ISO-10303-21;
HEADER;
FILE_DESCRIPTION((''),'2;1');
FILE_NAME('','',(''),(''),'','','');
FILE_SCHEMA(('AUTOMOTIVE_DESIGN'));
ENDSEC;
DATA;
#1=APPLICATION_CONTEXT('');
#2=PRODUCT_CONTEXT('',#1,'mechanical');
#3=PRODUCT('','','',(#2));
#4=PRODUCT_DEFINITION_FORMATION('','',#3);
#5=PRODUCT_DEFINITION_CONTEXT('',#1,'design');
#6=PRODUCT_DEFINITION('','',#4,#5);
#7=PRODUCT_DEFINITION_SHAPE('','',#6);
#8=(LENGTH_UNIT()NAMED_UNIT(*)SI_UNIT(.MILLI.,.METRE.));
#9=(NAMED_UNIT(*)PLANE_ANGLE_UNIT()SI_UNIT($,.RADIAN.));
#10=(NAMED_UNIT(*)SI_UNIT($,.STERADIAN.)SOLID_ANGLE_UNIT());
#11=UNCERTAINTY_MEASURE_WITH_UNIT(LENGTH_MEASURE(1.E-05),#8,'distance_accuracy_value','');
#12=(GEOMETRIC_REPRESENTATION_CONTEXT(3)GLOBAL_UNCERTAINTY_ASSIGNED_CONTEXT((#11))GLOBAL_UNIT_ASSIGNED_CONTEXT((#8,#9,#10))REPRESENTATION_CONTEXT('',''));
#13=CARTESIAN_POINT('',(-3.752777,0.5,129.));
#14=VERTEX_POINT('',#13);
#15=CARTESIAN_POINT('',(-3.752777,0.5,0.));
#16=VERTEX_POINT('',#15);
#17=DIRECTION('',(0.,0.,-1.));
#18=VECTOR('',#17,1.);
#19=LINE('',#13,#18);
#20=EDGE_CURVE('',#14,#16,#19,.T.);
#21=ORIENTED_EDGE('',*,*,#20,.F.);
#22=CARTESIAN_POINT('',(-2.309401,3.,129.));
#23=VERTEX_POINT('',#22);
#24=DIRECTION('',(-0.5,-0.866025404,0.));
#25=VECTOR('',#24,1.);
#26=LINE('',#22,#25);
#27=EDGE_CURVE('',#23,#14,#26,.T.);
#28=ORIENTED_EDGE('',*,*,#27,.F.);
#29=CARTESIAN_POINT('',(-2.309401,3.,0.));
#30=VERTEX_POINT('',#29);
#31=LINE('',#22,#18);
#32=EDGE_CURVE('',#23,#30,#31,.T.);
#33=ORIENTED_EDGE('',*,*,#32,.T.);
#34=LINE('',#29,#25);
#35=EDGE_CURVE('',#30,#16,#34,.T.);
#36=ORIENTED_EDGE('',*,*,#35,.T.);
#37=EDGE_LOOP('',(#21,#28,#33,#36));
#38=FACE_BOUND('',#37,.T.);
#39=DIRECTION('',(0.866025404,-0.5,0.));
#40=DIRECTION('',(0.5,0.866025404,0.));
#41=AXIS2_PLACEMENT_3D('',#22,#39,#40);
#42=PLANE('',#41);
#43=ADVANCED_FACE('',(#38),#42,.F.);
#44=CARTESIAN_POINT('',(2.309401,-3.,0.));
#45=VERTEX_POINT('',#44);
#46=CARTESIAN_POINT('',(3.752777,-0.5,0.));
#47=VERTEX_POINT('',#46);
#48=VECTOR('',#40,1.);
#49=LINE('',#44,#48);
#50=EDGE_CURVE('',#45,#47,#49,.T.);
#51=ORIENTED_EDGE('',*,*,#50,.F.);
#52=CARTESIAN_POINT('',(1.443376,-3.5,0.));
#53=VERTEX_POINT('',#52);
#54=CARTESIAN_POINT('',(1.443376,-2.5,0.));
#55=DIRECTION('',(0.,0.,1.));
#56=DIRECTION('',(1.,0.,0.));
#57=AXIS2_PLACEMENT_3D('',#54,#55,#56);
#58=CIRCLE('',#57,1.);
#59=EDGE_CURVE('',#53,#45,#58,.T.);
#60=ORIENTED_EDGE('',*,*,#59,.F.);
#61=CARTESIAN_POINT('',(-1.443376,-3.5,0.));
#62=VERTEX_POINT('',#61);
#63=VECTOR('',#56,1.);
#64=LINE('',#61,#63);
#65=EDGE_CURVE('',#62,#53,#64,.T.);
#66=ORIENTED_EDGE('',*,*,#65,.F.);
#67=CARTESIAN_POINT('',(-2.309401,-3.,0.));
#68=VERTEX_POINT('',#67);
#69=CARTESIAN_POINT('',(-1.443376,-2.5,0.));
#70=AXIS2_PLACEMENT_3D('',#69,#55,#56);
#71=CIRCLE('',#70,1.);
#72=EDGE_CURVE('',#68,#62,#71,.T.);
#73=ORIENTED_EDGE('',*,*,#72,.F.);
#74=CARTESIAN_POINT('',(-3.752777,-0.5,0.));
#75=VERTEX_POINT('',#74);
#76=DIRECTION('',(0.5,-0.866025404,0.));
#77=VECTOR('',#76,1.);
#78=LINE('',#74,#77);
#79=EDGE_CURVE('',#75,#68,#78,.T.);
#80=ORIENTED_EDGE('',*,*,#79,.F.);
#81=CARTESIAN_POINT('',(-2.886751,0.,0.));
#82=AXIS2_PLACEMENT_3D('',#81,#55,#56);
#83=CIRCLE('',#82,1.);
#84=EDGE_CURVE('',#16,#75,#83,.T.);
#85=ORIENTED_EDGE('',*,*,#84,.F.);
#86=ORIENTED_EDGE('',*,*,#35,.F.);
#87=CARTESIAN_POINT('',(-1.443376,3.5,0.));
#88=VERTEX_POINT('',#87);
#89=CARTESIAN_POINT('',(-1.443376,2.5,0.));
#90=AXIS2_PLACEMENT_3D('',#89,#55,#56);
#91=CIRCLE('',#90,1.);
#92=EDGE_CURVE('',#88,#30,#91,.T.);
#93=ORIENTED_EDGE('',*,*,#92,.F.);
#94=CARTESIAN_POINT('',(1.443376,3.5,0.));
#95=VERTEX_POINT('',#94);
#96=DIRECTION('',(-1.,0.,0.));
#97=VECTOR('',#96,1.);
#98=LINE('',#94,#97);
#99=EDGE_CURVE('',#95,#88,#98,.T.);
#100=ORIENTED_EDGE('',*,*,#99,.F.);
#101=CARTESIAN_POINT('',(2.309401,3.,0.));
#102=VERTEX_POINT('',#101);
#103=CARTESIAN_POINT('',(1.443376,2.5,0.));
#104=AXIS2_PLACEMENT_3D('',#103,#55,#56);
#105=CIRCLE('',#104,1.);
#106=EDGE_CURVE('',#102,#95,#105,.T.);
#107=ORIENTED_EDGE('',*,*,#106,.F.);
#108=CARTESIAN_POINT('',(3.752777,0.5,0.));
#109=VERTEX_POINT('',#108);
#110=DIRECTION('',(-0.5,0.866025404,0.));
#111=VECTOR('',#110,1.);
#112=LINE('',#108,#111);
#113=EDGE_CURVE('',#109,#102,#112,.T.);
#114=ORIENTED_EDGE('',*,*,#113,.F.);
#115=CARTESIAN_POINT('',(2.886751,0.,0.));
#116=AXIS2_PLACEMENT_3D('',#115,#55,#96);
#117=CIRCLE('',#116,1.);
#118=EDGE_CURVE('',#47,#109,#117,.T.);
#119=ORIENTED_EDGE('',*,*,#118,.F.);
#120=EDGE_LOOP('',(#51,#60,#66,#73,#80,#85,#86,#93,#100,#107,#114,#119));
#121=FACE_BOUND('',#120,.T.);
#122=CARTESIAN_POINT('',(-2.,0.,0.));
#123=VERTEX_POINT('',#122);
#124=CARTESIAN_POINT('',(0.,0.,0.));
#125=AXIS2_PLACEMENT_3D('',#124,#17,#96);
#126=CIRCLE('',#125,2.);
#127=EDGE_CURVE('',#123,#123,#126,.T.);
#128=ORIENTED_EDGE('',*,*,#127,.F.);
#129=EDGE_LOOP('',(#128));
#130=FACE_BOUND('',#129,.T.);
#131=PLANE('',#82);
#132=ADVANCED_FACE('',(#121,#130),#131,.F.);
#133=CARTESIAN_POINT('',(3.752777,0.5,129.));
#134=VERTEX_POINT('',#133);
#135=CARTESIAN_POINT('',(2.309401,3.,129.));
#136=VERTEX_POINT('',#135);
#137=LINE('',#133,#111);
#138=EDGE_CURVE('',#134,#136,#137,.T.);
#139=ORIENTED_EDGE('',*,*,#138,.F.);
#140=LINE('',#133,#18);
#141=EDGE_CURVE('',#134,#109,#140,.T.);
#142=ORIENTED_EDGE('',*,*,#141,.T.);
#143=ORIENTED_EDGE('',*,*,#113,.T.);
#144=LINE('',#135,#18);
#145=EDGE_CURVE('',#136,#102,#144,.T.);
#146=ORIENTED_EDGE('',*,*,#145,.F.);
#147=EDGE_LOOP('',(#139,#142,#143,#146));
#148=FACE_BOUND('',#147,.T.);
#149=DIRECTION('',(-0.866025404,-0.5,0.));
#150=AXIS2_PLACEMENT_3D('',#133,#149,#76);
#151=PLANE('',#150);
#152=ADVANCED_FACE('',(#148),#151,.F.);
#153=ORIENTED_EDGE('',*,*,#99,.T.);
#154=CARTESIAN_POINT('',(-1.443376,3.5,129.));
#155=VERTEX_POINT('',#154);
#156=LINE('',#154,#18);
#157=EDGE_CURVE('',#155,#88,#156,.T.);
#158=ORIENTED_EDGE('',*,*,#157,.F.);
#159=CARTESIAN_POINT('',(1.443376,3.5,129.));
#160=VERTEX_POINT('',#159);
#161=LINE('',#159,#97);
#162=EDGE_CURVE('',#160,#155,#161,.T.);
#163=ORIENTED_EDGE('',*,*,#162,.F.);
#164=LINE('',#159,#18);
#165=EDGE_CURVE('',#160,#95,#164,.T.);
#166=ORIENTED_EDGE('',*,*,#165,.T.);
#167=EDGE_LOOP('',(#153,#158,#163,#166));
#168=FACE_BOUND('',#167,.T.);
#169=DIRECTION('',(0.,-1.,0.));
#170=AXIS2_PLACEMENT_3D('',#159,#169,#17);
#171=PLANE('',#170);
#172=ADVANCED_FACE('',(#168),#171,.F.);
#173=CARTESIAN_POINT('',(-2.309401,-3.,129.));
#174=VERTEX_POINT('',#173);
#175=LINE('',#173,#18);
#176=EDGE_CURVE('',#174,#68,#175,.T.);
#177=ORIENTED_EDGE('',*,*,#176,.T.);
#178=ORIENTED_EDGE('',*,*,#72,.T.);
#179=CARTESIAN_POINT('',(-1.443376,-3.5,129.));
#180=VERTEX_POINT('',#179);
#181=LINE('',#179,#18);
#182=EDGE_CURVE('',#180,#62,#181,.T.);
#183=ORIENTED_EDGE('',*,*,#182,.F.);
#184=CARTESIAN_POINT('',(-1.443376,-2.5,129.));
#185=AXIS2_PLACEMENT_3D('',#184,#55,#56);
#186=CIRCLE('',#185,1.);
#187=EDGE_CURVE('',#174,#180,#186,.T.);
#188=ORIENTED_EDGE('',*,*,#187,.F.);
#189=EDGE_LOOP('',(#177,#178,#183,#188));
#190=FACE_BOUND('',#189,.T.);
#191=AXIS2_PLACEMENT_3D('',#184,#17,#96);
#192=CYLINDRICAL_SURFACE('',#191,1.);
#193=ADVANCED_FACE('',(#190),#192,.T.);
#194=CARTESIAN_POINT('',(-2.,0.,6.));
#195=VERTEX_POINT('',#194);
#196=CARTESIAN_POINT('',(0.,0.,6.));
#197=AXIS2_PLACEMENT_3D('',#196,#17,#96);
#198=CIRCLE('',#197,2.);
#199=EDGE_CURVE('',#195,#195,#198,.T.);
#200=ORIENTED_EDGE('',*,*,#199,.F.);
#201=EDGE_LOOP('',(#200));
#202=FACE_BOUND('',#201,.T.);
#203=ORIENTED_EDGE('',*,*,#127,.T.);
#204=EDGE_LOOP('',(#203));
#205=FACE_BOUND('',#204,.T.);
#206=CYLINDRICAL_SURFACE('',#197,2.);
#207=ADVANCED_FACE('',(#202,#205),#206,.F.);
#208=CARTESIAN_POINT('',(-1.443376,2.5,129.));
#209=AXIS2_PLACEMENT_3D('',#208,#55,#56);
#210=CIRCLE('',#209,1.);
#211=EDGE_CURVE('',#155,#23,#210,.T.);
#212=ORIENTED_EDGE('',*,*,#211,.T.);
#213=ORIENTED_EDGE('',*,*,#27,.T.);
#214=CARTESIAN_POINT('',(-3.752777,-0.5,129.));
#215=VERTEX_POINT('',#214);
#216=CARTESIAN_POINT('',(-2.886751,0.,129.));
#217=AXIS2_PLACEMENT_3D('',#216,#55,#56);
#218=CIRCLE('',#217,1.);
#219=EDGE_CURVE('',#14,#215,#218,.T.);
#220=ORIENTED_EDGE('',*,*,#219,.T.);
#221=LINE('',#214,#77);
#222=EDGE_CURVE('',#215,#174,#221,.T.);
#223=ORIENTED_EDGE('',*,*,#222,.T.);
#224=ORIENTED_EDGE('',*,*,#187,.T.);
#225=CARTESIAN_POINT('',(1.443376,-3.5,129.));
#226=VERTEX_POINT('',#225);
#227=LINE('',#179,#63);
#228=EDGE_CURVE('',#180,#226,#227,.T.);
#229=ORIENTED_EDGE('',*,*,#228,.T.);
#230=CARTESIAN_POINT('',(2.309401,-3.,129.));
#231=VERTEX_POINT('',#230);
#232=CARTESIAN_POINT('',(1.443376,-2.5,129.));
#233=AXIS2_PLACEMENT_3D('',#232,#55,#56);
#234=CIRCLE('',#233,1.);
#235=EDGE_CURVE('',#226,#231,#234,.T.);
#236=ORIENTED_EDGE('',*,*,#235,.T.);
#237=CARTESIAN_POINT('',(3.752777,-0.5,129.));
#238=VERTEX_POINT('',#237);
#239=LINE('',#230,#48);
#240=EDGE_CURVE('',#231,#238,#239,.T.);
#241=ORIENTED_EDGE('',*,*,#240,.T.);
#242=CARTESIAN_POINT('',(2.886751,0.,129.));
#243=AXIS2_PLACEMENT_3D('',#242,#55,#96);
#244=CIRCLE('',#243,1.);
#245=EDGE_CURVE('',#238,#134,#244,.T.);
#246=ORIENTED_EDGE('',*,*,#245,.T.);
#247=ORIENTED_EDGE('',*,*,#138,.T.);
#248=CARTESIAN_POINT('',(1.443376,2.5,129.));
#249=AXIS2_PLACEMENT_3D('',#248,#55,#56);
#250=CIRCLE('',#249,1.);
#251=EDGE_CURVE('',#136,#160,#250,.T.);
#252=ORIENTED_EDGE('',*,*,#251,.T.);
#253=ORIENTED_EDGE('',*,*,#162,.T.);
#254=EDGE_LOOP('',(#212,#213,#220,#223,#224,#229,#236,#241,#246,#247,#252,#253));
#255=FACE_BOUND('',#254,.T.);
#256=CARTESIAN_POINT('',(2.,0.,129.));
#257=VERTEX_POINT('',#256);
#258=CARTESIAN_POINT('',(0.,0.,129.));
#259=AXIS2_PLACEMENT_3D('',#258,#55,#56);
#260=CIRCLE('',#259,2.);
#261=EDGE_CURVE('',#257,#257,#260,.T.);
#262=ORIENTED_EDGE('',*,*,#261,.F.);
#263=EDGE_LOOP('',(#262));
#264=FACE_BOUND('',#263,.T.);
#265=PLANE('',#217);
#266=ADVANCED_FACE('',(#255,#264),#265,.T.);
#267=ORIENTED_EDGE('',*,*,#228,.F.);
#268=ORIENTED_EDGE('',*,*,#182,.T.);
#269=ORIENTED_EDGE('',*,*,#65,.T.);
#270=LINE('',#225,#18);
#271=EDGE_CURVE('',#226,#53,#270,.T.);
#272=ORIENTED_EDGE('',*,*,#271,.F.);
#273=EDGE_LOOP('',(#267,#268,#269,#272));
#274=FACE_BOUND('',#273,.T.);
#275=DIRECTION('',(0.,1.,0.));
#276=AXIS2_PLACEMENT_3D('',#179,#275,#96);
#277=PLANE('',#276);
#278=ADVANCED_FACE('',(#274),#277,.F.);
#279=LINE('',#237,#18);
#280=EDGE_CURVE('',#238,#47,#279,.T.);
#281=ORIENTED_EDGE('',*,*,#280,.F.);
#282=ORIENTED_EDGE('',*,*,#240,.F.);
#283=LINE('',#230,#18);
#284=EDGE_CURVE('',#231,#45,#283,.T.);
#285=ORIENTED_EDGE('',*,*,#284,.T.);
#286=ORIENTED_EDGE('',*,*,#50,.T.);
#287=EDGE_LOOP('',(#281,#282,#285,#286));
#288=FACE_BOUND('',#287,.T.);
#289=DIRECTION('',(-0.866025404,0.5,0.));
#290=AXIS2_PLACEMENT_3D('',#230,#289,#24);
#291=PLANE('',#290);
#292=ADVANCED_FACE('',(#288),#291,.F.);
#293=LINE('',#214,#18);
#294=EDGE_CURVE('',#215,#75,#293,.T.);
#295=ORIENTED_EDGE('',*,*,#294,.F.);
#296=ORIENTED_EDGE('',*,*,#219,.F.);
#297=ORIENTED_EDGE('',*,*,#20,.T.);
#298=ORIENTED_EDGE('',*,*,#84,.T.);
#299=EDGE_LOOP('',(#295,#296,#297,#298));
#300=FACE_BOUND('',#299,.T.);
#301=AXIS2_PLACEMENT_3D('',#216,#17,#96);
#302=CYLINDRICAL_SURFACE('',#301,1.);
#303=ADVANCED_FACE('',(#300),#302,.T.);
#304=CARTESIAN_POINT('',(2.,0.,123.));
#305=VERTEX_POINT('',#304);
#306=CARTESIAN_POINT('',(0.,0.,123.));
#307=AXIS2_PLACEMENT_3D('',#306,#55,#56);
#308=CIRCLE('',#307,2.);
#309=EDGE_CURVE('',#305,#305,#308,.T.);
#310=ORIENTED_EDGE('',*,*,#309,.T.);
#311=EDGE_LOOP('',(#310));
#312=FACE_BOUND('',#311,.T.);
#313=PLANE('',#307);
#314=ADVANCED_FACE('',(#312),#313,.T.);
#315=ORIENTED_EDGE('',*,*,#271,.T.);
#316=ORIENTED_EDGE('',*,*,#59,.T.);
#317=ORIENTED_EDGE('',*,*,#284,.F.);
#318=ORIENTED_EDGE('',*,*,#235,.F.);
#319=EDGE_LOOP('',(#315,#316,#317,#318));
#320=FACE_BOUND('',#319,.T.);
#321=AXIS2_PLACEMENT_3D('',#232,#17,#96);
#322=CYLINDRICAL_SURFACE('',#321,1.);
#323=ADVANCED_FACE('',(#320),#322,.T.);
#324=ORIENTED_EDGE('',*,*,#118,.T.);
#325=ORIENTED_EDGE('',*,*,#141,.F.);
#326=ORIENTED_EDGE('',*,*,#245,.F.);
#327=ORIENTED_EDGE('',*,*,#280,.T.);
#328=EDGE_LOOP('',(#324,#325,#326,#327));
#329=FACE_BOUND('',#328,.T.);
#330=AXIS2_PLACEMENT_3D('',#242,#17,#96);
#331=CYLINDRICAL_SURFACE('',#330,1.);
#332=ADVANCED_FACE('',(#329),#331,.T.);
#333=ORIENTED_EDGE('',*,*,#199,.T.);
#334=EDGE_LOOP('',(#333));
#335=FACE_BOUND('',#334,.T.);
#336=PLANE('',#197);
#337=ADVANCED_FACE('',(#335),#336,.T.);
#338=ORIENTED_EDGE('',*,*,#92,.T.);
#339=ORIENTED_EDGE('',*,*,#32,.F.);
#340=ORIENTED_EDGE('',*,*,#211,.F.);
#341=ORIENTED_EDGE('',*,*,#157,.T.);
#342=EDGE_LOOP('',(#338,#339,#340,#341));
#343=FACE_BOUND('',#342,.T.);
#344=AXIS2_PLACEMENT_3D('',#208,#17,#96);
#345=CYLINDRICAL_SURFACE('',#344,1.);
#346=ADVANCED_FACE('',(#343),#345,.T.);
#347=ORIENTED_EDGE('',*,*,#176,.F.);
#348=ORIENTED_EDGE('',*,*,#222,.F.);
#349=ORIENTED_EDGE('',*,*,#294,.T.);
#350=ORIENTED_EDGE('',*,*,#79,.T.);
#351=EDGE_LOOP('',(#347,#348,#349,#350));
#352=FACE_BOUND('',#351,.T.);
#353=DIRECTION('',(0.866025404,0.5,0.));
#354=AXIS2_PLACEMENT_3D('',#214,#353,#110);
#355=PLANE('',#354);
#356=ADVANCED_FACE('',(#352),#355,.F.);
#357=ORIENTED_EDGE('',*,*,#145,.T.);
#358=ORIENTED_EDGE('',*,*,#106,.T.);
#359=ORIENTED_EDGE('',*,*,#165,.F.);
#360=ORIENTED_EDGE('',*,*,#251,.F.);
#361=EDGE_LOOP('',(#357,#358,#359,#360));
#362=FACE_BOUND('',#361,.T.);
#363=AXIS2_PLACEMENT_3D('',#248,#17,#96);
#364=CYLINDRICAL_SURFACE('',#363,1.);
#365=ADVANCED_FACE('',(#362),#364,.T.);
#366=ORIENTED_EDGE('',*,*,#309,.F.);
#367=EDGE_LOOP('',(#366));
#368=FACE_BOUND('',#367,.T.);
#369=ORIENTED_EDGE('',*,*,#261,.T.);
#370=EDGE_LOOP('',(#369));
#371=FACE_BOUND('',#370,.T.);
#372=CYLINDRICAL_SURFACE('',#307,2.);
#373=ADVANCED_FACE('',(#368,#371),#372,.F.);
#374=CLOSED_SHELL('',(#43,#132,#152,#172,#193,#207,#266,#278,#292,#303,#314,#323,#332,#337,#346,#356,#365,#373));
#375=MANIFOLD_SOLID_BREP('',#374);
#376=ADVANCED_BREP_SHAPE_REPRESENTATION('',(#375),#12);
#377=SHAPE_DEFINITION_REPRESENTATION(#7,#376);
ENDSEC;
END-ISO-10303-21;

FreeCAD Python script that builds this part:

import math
import FreeCAD as App
import Part
import Sketcher
from FreeCAD import Vector
Q = App.Units.Quantity

doc = App.newDocument("Part")
body = doc.addObject("PartDesign::Body", "Body")

# Sketch on XY plane
sketch1 = body.newObject("Sketcher::SketchObject", "Sketch")
sketch1.AttachmentSupport = (doc.getObject("XY_Plane"), [""])
sketch1.MapMode = "FlatFace"
sketch1.addGeometry([
    Part.LineSegment(Vector(3.8, 0.5, 0), Vector(2.3, 3, 0)),  # 0
    Part.ArcOfCircle(Part.Circle(Vector(1.4, 2.5, 0), Vector(0, 0, 1), 1), math.radians(30), math.radians(90)),  # 1
    Part.LineSegment(Vector(1.4, 3.5, 0), Vector(-1.4, 3.5, 0)),  # 2
    Part.ArcOfCircle(Part.Circle(Vector(-1.4, 2.5, 0), Vector(0, 0, 1), 1), math.radians(90), math.radians(150)),  # 3
    Part.LineSegment(Vector(-2.3, 3, 0), Vector(-3.8, 0.5, 0)),  # 4
    Part.ArcOfCircle(Part.Circle(Vector(-2.9, 0, 0), Vector(0, 0, 1), 1), math.radians(150), math.radians(210)),  # 5
    Part.LineSegment(Vector(-3.8, -0.5, 0), Vector(-2.3, -3, 0)),  # 6
    Part.ArcOfCircle(Part.Circle(Vector(-1.4, -2.5, 0), Vector(0, 0, 1), 1), math.radians(-150), math.radians(-90)),  # 7
    Part.LineSegment(Vector(-1.4, -3.5, 0), Vector(1.4, -3.5, 0)),  # 8
    Part.ArcOfCircle(Part.Circle(Vector(1.4, -2.5, 0), Vector(0, 0, 1), 1), math.radians(-90), math.radians(-30)),  # 9
    Part.LineSegment(Vector(2.3, -3, 0), Vector(3.8, -0.5, 0)),  # 10
    Part.ArcOfCircle(Part.Circle(Vector(2.9, 0, 0), Vector(0, 0, 1), 1), math.radians(-30), math.radians(30)),  # 11
], False)
sketch1.addConstraint([
    Sketcher.Constraint("Tangent", 0, 2, 1, 1),
    Sketcher.Constraint("Tangent", 1, 2, 2, 1),
    Sketcher.Constraint("Tangent", 2, 2, 3, 1),
    Sketcher.Constraint("Tangent", 3, 2, 4, 1),
    Sketcher.Constraint("Tangent", 4, 2, 5, 1),
    Sketcher.Constraint("Tangent", 5, 2, 6, 1),
    Sketcher.Constraint("Tangent", 6, 2, 7, 1),
    Sketcher.Constraint("Tangent", 7, 2, 8, 1),
    Sketcher.Constraint("Tangent", 8, 2, 9, 1),
    Sketcher.Constraint("Tangent", 9, 2, 10, 1),
    Sketcher.Constraint("Tangent", 10, 2, 11, 1),
    Sketcher.Constraint("Tangent", 11, 2, 0, 1),
    Sketcher.Constraint("Horizontal", 2),
    Sketcher.Constraint("Horizontal", 8),
    Sketcher.Constraint("Equal", 1, 3),
    Sketcher.Constraint("Equal", 3, 5),
    Sketcher.Constraint("Equal", 5, 7),
    Sketcher.Constraint("Equal", 7, 9),
    Sketcher.Constraint("Equal", 9, 11),
    Sketcher.Constraint("Symmetric", 1, 3, 7, 3, -1, 1),
    Sketcher.Constraint("Symmetric", 5, 3, 11, 3, -1, 1),
    Sketcher.Constraint("Symmetric", 0, 2, 3, 2, -2),
    Sketcher.Constraint("Parallel", 4, 10),
    Sketcher.Constraint("Radius", 1, Q("1 mm")),
    Sketcher.Constraint("Angle", 0, Q("120 deg")),
    Sketcher.Constraint("DistanceY", -1, 1, 0, 2, Q("3 mm")),
    Sketcher.Constraint("DistanceX", 2, 2, 2, 1, Q("2.886751 mm")),
])
pad1 = body.newObject("PartDesign::Pad", "Pad")
pad1.Profile = sketch1
pad1.Length = 129

# Sketch on XY plane
sketch2 = body.newObject("Sketcher::SketchObject", "Sketch001")
sketch2.AttachmentSupport = (doc.getObject("XY_Plane"), [""])
sketch2.MapMode = "FlatFace"
sketch2.AttachmentOffset = App.Placement(Vector(0, 0, 129), App.Rotation())
sketch2.addGeometry(Part.Circle(Vector(0, 0, 0), Vector(0, 0, 1), 2), False)
sketch2.addConstraint([
    Sketcher.Constraint("Coincident", 0, 3, -1, 1),
    Sketcher.Constraint("Diameter", 0, Q("4 mm")),
])
pocket1 = body.newObject("PartDesign::Pocket", "Pocket")
pocket1.Profile = sketch2
pocket1.Length = 6

# Sketch on XY plane
sketch3 = body.newObject("Sketcher::SketchObject", "Sketch002")
sketch3.AttachmentSupport = (doc.getObject("XY_Plane"), [""])
sketch3.MapMode = "FlatFace"
sketch3.AttachmentOffset = App.Placement(Vector(0, 0, 6), App.Rotation())
sketch3.addGeometry(Part.Circle(Vector(0, 0, 0), Vector(0, 0, 1), 2), False)
sketch3.addConstraint([
    Sketcher.Constraint("Coincident", 0, 3, -1, 1),
    Sketcher.Constraint("Diameter", 0, Q("4 mm")),
])
pocket2 = body.newObject("PartDesign::Pocket", "Pocket001")
pocket2.Profile = sketch3
pocket2.Length = 6

doc.recompute()
